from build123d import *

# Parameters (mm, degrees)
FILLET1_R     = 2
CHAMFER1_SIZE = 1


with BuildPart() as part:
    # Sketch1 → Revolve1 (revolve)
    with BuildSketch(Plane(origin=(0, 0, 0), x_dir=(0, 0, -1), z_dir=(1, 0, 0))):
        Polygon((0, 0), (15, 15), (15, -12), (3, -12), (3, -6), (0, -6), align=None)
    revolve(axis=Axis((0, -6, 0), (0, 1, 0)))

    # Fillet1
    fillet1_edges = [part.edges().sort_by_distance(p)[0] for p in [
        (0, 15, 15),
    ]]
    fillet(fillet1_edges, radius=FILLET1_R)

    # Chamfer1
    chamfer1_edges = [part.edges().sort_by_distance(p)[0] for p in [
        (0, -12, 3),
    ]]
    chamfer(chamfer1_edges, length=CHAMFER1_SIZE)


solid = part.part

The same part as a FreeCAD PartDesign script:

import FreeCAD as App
import Part
import Sketcher
from FreeCAD import Vector
Q = App.Units.Quantity


def edges_at(feature, points):
    """Names of the edges that pass closest to the given points."""
    edges = feature.Shape.Edges
    near = lambda p: min(range(len(edges)), key=lambda i: edges[i].distToShape(Part.Vertex(*p))[0])
    return sorted({f"Edge{near(p) + 1}" for p in points})

doc = App.newDocument("Part")
body = doc.addObject("PartDesign::Body", "Body")

# Sketch on YZ plane
sketch1 = doc.addObject("Sketcher::SketchObject", "Sketch")
body.addObject(sketch1)
sketch1.AttachmentSupport = (doc.YZ_Plane, [""])
sketch1.MapMode = "FlatFace"
sketch1.addGeometry(Part.LineSegment(Vector(15, -15, 0), Vector(0, 0, 0)), False)
sketch1.addGeometry(Part.LineSegment(Vector(0, 0, 0), Vector(-6, 0, 0)), False)
sketch1.addGeometry(Part.LineSegment(Vector(-6, 0, 0), Vector(-6, -3, 0)), False)
sketch1.addGeometry(Part.LineSegment(Vector(-6, -3, 0), Vector(-12, -3, 0)), False)
sketch1.addGeometry(Part.LineSegment(Vector(-12, -3, 0), Vector(-12, -15, 0)), False)
sketch1.addGeometry(Part.LineSegment(Vector(-12, -15, 0), Vector(15, -15, 0)), False)
sketch1.addConstraint(Sketcher.Constraint("Coincident", 0, 2, 1, 1))
sketch1.addConstraint(Sketcher.Constraint("Coincident", 1, 2, 2, 1))
sketch1.addConstraint(Sketcher.Constraint("Coincident", 2, 2, 3, 1))
sketch1.addConstraint(Sketcher.Constraint("Coincident", 3, 2, 4, 1))
sketch1.addConstraint(Sketcher.Constraint("Coincident", 4, 2, 5, 1))
sketch1.addConstraint(Sketcher.Constraint("Coincident", 5, 2, 0, 1))
sketch1.addConstraint(Sketcher.Constraint("Horizontal", 1))
sketch1.addConstraint(Sketcher.Constraint("Vertical", 2))
sketch1.addConstraint(Sketcher.Constraint("Horizontal", 3))
sketch1.addConstraint(Sketcher.Constraint("Vertical", 4))
sketch1.addConstraint(Sketcher.Constraint("Horizontal", 5))
sketch1.addConstraint(Sketcher.Constraint("Coincident", 0, 2, -1, 1))
sketch1.addConstraint(Sketcher.Constraint("Equal", 1, 3))
sketch1.addConstraint(Sketcher.Constraint("DistanceX", 1, 2, 1, 1, Q("6 mm")))
sketch1.addConstraint(Sketcher.Constraint("DistanceX", 5, 1, 5, 2, Q("27 mm")))
sketch1.addConstraint(Sketcher.Constraint("DistanceY", 2, 2, 2, 1, Q("3 mm")))
sketch1.addConstraint(Sketcher.Constraint("DistanceY", 4, 2, 4, 1, Q("12 mm")))
revolution = doc.addObject("PartDesign::Revolution", "Revolution")
body.addObject(revolution)
revolution.Profile = sketch1
revolution.ReferenceAxis = (sketch1, ["H_Axis"])
revolution.Angle = 360
doc.recompute()

fillet = doc.addObject("PartDesign::Fillet", "Fillet")
body.addObject(fillet)
fillet.Base = (revolution, edges_at(revolution, [(0, 15, 15)]))
fillet.Radius = 2
doc.recompute()

chamfer = doc.addObject("PartDesign::Chamfer", "Chamfer")
body.addObject(chamfer)
chamfer.Base = (fillet, edges_at(fillet, [(0, -12, 3)]))
chamfer.Size = 1

doc.recompute()
